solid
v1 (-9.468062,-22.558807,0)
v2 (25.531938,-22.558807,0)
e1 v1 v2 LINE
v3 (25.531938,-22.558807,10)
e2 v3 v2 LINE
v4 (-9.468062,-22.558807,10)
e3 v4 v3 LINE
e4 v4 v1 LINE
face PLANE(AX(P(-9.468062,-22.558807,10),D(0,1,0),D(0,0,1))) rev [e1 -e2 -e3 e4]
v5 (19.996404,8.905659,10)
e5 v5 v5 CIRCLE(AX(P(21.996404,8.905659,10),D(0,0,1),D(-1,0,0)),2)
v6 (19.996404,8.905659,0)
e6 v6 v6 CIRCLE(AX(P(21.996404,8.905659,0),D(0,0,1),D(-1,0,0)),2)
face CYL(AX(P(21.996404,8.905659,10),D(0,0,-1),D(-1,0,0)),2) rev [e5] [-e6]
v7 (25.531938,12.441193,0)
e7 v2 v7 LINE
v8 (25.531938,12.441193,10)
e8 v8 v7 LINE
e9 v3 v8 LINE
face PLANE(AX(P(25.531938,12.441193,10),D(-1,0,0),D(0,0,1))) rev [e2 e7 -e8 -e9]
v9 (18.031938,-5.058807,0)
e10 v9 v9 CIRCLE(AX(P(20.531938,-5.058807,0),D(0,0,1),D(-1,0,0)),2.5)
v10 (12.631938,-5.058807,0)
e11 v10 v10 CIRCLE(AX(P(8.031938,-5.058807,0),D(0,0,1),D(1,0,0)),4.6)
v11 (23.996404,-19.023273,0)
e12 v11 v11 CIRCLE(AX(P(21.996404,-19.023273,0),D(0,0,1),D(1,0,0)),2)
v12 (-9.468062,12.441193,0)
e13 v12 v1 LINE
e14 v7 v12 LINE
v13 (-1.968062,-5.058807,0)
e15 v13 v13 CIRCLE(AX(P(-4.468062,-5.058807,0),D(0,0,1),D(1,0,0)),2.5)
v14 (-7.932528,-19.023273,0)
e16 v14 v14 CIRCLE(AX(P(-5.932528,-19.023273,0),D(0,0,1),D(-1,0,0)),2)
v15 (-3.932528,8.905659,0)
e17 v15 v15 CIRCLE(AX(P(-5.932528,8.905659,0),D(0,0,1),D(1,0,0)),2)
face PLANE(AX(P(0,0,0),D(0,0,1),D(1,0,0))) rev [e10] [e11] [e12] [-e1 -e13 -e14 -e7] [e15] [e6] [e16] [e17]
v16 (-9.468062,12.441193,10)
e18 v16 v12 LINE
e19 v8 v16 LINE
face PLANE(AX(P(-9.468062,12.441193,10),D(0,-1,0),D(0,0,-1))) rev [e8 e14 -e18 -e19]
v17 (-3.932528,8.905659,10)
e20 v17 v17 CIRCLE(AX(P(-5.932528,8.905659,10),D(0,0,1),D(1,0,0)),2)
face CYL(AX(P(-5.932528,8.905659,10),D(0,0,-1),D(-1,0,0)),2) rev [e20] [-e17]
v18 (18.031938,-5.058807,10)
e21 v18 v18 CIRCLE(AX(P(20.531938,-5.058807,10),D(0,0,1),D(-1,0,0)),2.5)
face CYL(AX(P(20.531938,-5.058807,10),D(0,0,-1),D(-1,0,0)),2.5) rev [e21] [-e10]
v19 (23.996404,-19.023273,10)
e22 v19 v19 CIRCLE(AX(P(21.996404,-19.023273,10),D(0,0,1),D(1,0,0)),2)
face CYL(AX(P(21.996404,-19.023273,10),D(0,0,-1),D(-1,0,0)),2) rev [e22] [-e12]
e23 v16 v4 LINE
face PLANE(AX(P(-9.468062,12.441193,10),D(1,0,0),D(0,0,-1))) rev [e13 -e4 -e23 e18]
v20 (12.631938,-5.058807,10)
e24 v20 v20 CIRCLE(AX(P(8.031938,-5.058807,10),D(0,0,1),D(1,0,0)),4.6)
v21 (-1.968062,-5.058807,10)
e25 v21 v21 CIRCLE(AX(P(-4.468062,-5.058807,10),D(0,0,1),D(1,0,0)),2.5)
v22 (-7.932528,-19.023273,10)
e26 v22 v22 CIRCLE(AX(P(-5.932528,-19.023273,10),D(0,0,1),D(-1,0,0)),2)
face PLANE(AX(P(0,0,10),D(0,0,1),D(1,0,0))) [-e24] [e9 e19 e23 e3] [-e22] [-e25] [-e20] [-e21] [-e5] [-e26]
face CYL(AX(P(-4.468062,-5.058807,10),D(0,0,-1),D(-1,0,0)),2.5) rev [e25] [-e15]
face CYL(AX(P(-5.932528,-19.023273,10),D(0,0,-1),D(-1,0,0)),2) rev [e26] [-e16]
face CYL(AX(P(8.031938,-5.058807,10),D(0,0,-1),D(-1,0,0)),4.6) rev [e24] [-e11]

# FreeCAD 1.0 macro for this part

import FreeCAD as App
import Part
import Sketcher
Q = App.Units.Quantity


def add_polygon(sketch, points):
    """Adds a closed chain of lines whose ends are joined by coincident constraints."""
    first, n = sketch.GeometryCount, len(points)
    for a, b in zip(points, points[1:] + points[:1]):
        sketch.addGeometry(Part.LineSegment(App.Vector(*a, 0), App.Vector(*b, 0)), False)
    for i in range(n):
        sketch.addConstraint(Sketcher.Constraint("Coincident", first + i, 2, first + (i + 1) % n, 1))

doc = App.newDocument("Part")
body = doc.addObject("PartDesign::Body", "Body")

# Sketch on XY plane
sketch1 = body.newObject("Sketcher::SketchObject", "Sketch")
sketch1.AttachmentSupport = (doc.getObject("XY_Plane"), [""])
sketch1.MapMode = "FlatFace"
add_polygon(sketch1, [(-9.468062, 12.441193), (-9.468062, -22.558807), (25.531938, -22.558807), (25.531938, 12.441193)])  # lines 0-3
sketch1.addGeometry(Part.Circle(App.Vector(-5.932528, -19.023273, 0), App.Vector(0, 0, 1), 2), False)  # 4
sketch1.addGeometry(Part.Circle(App.Vector(21.996404, -19.023273, 0), App.Vector(0, 0, 1), 2), False)  # 5
sketch1.addGeometry(Part.Circle(App.Vector(-4.468062, -5.058807, 0), App.Vector(0, 0, 1), 2.5), False)  # 6
sketch1.addGeometry(Part.Circle(App.Vector(8.031938, -5.058807, 0), App.Vector(0, 0, 1), 4.6), False)  # 7
sketch1.addGeometry(Part.Circle(App.Vector(-5.932528, 8.905659, 0), App.Vector(0, 0, 1), 2), False)  # 8
sketch1.addGeometry(Part.Circle(App.Vector(20.531938, -5.058807, 0), App.Vector(0, 0, 1), 2.5), False)  # 9
sketch1.addGeometry(Part.Circle(App.Vector(21.996404, 8.905659, 0), App.Vector(0, 0, 1), 2), False)  # 10
sketch1.addConstraint(Sketcher.Constraint("Vertical", 0))
sketch1.addConstraint(Sketcher.Constraint("Horizontal", 1))
sketch1.addConstraint(Sketcher.Constraint("Vertical", 2))
sketch1.addConstraint(Sketcher.Constraint("Horizontal", 3))
sketch1.addConstraint(Sketcher.Constraint("Equal", 4, 5))
sketch1.addConstraint(Sketcher.Constraint("Equal", 5, 8))
sketch1.addConstraint(Sketcher.Constraint("Equal", 6, 9))
sketch1.addConstraint(Sketcher.Constraint("Equal", 8, 10))
sketch1.addConstraint(Sketcher.Constraint("Horizontal", 4, 3, 5, 3))
sketch1.addConstraint(Sketcher.Constraint("Horizontal", 6, 3, 7, 3))
sketch1.addConstraint(Sketcher.Constraint("Horizontal", 7, 3, 9, 3))
sketch1.addConstraint(Sketcher.Constraint("Horizontal", 8, 3, 10, 3))
sketch1.addConstraint(Sketcher.Constraint("Vertical", 4, 3, 8, 3))
sketch1.addConstraint(Sketcher.Constraint("Vertical", 5, 3, 10, 3))
sketch1.addConstraint(Sketcher.Constraint("Equal", 3, 0))
sketch1.addConstraint(Sketcher.Constraint("Diameter", 4, Q("4 mm")))
sketch1.addConstraint(Sketcher.Constraint("Diameter", 6, Q("5 mm")))
sketch1.addConstraint(Sketcher.Constraint("Diameter", 7, Q("9.2 mm")))
sketch1.addConstraint(Sketcher.Constraint("DistanceX", 1, 1, 1, 2, Q("35 mm")))
sketch1.addConstraint(Sketcher.Constraint("DistanceX", 6, 3, 9, 3, Q("25 mm")))
sketch1.addConstraint(Sketcher.Constraint("DistanceX", 0, 2, 6, 3, Q("5 mm")))
sketch1.addConstraint(Sketcher.Constraint("DistanceX", 6, 3, 7, 3, Q("12.5 mm")))
sketch1.addConstraint(Sketcher.Constraint("DistanceY", 0, 2, 6, 3, Q("17.5 mm")))
sketch1.addConstraint(Sketcher.Constraint("DistanceX", 4, 3, -1, 1, Q("5.932528 mm")))
sketch1.addConstraint(Sketcher.Constraint("DistanceY", -1, 1, 8, 3, Q("8.905659 mm")))
sketch1.addConstraint(Sketcher.Constraint("DistanceY", 4, 3, -1, 1, Q("19.023273 mm")))
sketch1.addConstraint(Sketcher.Constraint("DistanceX", -1, 1, 5, 3, Q("21.996404 mm")))
sketch1.addConstraint(Sketcher.Constraint("DistanceX", 6, 3, -1, 1, Q("4.468062 mm")))
sketch1.addConstraint(Sketcher.Constraint("DistanceY", 6, 3, -1, 1, Q("5.058807 mm")))
pad1 = body.newObject("PartDesign::Pad", "Pad")
pad1.Profile = sketch1
pad1.Length = 10

doc.recompute()
